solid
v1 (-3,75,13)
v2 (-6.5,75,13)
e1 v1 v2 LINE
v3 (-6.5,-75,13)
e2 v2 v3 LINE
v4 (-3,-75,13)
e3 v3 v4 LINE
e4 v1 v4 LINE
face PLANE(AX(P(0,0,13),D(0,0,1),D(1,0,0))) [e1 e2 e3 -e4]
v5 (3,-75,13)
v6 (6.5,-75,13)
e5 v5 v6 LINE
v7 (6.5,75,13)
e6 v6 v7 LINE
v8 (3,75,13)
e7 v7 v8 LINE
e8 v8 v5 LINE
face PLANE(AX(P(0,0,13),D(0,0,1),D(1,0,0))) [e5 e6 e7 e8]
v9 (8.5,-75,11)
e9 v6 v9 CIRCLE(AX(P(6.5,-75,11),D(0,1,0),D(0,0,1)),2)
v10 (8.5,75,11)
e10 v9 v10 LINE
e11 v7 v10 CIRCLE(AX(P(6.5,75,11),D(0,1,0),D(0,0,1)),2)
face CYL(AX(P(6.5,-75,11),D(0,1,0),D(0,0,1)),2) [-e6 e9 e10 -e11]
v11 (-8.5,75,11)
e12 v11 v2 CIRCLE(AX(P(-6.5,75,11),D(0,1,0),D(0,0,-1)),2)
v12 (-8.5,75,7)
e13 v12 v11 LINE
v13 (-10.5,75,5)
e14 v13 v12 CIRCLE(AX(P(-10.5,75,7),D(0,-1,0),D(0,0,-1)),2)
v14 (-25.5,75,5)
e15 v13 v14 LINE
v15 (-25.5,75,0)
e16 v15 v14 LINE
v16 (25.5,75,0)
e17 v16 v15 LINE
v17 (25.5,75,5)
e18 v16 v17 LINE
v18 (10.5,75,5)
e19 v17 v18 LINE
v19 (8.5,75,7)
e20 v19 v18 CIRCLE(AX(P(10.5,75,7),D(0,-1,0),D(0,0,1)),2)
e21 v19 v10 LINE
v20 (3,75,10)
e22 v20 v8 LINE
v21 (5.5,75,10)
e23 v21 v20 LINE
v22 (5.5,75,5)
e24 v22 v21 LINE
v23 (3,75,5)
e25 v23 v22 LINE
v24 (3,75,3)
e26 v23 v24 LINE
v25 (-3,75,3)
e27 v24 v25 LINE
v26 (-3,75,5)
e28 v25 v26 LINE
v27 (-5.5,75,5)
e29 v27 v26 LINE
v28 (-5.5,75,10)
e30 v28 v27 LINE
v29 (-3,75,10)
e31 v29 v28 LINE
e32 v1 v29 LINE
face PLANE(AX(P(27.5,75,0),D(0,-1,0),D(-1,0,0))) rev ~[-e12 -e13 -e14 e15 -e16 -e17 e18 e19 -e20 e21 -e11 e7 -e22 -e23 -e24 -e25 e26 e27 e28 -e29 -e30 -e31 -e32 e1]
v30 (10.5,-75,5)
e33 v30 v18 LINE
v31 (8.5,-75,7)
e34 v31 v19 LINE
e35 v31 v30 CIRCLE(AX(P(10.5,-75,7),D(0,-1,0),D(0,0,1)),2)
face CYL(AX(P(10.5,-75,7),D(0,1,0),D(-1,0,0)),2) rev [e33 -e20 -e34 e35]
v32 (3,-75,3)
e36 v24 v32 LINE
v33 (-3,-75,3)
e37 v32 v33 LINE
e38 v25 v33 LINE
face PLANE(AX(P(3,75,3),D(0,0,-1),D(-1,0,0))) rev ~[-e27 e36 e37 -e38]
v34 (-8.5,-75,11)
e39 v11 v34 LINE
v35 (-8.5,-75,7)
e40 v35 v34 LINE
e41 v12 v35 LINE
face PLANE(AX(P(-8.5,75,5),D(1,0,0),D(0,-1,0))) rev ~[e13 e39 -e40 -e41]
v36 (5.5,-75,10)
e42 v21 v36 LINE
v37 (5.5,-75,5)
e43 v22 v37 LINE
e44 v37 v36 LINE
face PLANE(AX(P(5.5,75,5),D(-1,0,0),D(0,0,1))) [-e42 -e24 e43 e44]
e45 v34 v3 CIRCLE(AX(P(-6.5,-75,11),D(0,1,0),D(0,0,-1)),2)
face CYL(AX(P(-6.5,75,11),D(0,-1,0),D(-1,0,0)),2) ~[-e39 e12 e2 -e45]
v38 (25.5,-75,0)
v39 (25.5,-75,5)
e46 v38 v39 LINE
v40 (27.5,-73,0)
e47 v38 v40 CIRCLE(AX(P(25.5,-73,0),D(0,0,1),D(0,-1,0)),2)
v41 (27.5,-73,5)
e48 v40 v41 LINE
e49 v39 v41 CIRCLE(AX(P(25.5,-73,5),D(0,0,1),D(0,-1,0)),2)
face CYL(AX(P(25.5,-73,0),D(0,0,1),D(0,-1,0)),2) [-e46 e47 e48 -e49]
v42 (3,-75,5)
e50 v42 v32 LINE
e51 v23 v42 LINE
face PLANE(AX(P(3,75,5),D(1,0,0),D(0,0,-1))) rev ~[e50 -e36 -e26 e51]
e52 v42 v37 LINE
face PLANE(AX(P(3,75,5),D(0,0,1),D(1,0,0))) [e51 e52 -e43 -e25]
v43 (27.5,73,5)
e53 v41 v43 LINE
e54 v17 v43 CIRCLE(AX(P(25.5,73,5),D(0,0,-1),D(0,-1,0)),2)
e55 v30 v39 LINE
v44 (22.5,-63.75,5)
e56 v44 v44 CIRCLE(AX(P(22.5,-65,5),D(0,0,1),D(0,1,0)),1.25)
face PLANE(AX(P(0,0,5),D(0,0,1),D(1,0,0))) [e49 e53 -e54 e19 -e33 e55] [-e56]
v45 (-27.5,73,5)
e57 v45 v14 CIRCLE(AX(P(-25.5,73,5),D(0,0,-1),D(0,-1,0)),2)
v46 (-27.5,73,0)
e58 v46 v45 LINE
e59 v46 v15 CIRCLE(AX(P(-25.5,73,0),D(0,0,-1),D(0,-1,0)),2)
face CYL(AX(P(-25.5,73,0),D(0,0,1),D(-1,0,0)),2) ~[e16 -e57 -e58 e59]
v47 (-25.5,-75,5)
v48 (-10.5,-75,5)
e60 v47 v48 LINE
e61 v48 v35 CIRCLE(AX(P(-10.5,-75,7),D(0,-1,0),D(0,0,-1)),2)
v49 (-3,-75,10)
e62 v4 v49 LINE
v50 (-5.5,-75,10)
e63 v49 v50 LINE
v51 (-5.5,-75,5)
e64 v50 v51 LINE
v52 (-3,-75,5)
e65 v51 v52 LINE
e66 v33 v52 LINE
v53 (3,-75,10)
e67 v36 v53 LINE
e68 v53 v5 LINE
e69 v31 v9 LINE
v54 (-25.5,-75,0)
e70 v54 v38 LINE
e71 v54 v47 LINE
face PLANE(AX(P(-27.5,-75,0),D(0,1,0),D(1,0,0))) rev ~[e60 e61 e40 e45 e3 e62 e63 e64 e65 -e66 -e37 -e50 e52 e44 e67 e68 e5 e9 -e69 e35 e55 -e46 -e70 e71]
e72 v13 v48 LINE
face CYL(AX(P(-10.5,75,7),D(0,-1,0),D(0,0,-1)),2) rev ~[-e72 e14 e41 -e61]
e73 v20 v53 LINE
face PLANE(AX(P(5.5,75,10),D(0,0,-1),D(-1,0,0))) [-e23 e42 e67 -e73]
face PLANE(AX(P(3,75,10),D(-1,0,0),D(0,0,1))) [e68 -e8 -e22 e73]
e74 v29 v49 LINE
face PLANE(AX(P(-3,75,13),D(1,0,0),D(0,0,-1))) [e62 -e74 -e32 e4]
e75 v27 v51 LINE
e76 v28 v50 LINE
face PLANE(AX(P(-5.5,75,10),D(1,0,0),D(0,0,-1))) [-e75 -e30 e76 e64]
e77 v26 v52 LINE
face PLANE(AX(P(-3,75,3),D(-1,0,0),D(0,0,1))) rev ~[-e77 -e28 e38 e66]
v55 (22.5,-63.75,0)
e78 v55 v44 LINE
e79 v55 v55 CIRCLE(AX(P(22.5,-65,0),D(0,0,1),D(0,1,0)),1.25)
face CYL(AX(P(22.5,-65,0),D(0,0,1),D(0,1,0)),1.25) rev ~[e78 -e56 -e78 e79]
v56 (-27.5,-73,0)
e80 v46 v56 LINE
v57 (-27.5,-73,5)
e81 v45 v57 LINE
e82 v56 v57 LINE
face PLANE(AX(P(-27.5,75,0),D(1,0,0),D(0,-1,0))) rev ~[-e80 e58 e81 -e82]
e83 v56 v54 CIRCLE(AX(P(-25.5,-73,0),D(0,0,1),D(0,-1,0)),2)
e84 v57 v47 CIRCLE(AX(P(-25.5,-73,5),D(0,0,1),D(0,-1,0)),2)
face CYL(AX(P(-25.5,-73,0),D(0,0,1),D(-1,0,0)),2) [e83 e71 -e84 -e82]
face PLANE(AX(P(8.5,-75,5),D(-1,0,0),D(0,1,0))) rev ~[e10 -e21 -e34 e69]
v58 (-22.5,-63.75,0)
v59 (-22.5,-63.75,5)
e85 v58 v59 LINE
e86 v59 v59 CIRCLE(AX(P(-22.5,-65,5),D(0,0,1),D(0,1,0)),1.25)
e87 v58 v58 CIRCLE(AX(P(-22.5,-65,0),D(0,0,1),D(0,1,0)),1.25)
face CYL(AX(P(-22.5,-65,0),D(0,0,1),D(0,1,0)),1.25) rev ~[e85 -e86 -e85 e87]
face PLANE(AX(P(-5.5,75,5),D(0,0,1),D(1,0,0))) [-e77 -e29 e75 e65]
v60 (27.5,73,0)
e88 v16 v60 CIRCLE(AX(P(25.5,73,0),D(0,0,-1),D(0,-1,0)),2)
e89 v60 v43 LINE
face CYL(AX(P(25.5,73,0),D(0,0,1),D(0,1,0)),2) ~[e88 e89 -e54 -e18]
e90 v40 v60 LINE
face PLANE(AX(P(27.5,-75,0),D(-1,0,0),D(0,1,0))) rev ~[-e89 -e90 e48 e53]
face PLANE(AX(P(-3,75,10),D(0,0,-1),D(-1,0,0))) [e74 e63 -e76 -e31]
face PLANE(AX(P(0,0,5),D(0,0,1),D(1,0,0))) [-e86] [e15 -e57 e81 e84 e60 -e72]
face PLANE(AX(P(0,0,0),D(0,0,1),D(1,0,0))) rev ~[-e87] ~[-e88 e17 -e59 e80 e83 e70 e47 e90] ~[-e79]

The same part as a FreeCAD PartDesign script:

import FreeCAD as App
import Part
import Sketcher


def edges_at(feature, points):
    """Names of the edges that pass closest to the given points."""
    edges = feature.Shape.Edges
    near = lambda p: min(range(len(edges)), key=lambda i: edges[i].distToShape(Part.Vertex(*p))[0])
    return sorted({f"Edge{near(p) + 1}" for p in points})


def add_polygon(sketch, points):
    """Adds a closed chain of lines whose ends are joined by coincident constraints."""
    first, n = sketch.GeometryCount, len(points)
    for a, b in zip(points, points[1:] + points[:1]):
        sketch.addGeometry(Part.LineSegment(App.Vector(*a, 0), App.Vector(*b, 0)), False)
    for i in range(n):
        sketch.addConstraint(Sketcher.Constraint("Coincident", first + i, 2, first + (i + 1) % n, 1))

doc = App.newDocument("Part")
body = doc.addObject("PartDesign::Body", "Body")

sketch1 = body.newObject("Sketcher::SketchObject", "Sketch")
sketch1.AttachmentSupport = (doc.getObject("XY_Plane"), [""])
sketch1.MapMode = "FlatFace"
add_polygon(sketch1, [(-28, 75), (-28, -75), (28, -75), (28, 75)])
sketch1.addConstraint([
    Sketcher.Constraint("Vertical", 0),
    Sketcher.Constraint("Horizontal", 1),
    Sketcher.Constraint("Vertical", 2),
    Sketcher.Constraint("Horizontal", 3),
    Sketcher.Constraint("Symmetric", 0, 2, 2, 2, -1, 1),
    Sketcher.Constraint("DistanceX", 1, 1, 1, 2, 55.0),
    Sketcher.Constraint("DistanceY", 0, 2, 0, 1, 150.0),
])
pad1 = body.newObject("PartDesign::Pad", "Pad")
pad1.Profile = sketch1
pad1.Length = 5

sketch2 = body.newObject("Sketcher::SketchObject", "Sketch001")
sketch2.AttachmentSupport = (doc.getObject("XY_Plane"), [""])
sketch2.MapMode = "FlatFace"
sketch2.AttachmentOffset = App.Placement(App.Vector(0, 0, 5), App.Rotation())
add_polygon(sketch2, [(8, -75), (8, 75), (-8, 75), (-8, -75)])
sketch2.addConstraint([
    Sketcher.Constraint("Vertical", 0),
    Sketcher.Constraint("Horizontal", 1),
    Sketcher.Constraint("Vertical", 2),
    Sketcher.Constraint("Horizontal", 3),
    Sketcher.Constraint("Symmetric", 0, 2, 2, 2, -1, 1),
    Sketcher.Constraint("DistanceX", 1, 2, 1, 1, 17.0),
    Sketcher.Constraint("DistanceY", 0, 1, 0, 2, 150.0),
])
pad2 = body.newObject("PartDesign::Pad", "Pad001")
pad2.Profile = sketch2
pad2.Length = 8

sketch3 = body.newObject("Sketcher::SketchObject", "Sketch002")
sketch3.AttachmentSupport = (doc.getObject("XZ_Plane"), [""])
sketch3.MapMode = "FlatFace"
sketch3.AttachmentOffset = App.Placement(App.Vector(0, 0, -75), App.Rotation())
add_polygon(sketch3, [(5.5, 10), (5.5, 5), (3, 5), (3, 3), (-3, 3), (-3, 5), (-5.5, 5), (-5.5, 10), (-3, 10), (-3, 13), (3, 13), (3, 10)])
sketch3.addConstraint([
    Sketcher.Constraint("Vertical", 0),
    Sketcher.Constraint("Horizontal", 1),
    Sketcher.Constraint("Vertical", 2),
    Sketcher.Constraint("Horizontal", 3),
    Sketcher.Constraint("Vertical", 4),
    Sketcher.Constraint("Horizontal", 5),
    Sketcher.Constraint("Vertical", 6),
    Sketcher.Constraint("Horizontal", 7),
    Sketcher.Constraint("Vertical", 8),
    Sketcher.Constraint("Horizontal", 9),
    Sketcher.Constraint("Vertical", 10),
    Sketcher.Constraint("Horizontal", 11),
    Sketcher.Constraint("Symmetric", 1, 2, 4, 2, -2),
    Sketcher.Constraint("Symmetric", 7, 2, 10, 2, -2),
    Sketcher.Constraint("Vertical", 4, 2, 7, 2),
    Sketcher.Constraint("Equal", 1, 5),
    Sketcher.Constraint("DistanceX", 3, 2, 3, 1, 6.0),
    Sketcher.Constraint("DistanceY", 0, 2, 0, 1, 5.0),
    Sketcher.Constraint("DistanceY", 2, 2, 2, 1, 2.0),
    Sketcher.Constraint("DistanceY", 8, 1, 8, 2, 3.0),
    Sketcher.Constraint("DistanceY", -1, 1, 0, 2, 5.0),
    Sketcher.Constraint("DistanceX", 5, 2, 0, 2, 11.0),
])
pocket1 = body.newObject("PartDesign::Pocket", "Pocket")
pocket1.Profile = sketch3
pocket1.Type = "ThroughAll"
pocket1.Reversed = True

sketch4 = body.newObject("Sketcher::SketchObject", "Sketch003")
sketch4.AttachmentSupport = (doc.getObject("XY_Plane"), [""])
sketch4.MapMode = "FlatFace"
sketch4.addGeometry([
    Part.Circle(App.Vector(22.5, -65, 0), App.Vector(0, 0, 1), 1.2),
    Part.Circle(App.Vector(-22.5, -65, 0), App.Vector(0, 0, 1), 1.2),
], False)
sketch4.addConstraint([
    Sketcher.Constraint("Equal", 0, 1),
    Sketcher.Constraint("Symmetric", 0, 3, 1, 3, -2),
    Sketcher.Constraint("Diameter", 0, 2.5),
    Sketcher.Constraint("DistanceY", 0, 3, -1, 1, 65.0),
    Sketcher.Constraint("DistanceX", 1, 3, 0, 3, 45.0),
])
doc.recompute()
hole = body.newObject("PartDesign::Hole", "Hole")
hole.Profile = sketch4
hole.ThreadType = "None"
hole.Diameter = 2.5
hole.DepthType = "ThroughAll"
hole.Reversed = True
doc.recompute()

fillet = body.newObject("PartDesign::Fillet", "Fillet")
fillet.Base = (hole, edges_at(hole, [
    (-8.5, 0, 5),
    (8.5, 0, 5),
    (8.5, 0, 13),
    (-8.5, 0, 13),
    (27.5, -75, 2.5),
    (-27.5, -75, 2.5),
    (27.5, 75, 2.5),
    (-27.5, 75, 2.5),
]))
fillet.Radius = 2

doc.recompute()
